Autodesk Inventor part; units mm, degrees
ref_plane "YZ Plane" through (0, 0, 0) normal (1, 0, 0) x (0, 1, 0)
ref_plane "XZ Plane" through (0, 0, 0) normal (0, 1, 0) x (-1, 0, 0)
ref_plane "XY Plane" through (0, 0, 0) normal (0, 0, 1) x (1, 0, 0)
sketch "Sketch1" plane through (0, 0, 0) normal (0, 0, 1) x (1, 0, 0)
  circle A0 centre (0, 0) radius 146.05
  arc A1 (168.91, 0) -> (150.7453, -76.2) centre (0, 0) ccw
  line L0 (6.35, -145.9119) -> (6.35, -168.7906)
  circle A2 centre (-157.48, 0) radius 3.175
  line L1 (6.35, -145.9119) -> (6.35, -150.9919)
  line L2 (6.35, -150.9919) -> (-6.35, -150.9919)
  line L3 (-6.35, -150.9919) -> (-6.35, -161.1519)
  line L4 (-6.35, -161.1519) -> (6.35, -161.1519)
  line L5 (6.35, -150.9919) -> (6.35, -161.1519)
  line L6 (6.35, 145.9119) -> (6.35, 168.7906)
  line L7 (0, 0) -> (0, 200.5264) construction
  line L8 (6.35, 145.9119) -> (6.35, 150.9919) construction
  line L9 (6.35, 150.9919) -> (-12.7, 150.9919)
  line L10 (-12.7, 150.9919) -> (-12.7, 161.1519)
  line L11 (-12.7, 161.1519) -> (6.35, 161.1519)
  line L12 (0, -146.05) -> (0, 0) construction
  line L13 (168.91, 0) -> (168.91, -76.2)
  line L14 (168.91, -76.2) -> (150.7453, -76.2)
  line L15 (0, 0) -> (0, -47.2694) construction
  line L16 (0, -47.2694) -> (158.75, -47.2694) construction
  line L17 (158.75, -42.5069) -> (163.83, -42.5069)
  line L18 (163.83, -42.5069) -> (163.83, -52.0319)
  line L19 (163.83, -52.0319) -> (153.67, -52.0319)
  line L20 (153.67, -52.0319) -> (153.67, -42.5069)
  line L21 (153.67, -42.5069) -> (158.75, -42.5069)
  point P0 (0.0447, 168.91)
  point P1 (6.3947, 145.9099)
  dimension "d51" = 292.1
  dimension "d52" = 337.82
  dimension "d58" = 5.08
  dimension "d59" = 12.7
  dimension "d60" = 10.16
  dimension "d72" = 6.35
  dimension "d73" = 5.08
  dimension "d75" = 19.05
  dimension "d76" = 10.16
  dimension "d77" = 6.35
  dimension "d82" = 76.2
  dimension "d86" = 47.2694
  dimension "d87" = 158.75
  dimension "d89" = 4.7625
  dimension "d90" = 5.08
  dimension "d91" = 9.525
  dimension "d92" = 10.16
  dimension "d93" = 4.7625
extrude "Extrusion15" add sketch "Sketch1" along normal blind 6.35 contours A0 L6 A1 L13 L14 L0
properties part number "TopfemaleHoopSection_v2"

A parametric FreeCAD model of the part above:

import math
import FreeCAD as App
import Part
import Sketcher
Q = App.Units.Quantity


def add_polygon(sketch, points):
    """Adds a closed chain of lines whose ends are joined by coincident constraints."""
    first, n = sketch.GeometryCount, len(points)
    for a, b in zip(points, points[1:] + points[:1]):
        sketch.addGeometry(Part.LineSegment(App.Vector(*a, 0), App.Vector(*b, 0)), False)
    for i in range(n):
        sketch.addConstraint(Sketcher.Constraint("Coincident", first + i, 2, first + (i + 1) % n, 1))

doc = App.newDocument("Part")
body = doc.addObject("PartDesign::Body", "Body")

# Sketch on XY plane
sketch1 = doc.addObject("Sketcher::SketchObject", "Sketch")
body.addObject(sketch1)
sketch1.AttachmentSupport = (doc.XY_Plane, [""])
sketch1.MapMode = "FlatFace"
sketch1.addGeometry(Part.ArcOfCircle(Part.Circle(App.Vector(0, 0, 0), App.Vector(0, 0, 1), 146), math.radians(-88), math.radians(88)), False)  # 0
sketch1.addGeometry(Part.LineSegment(App.Vector(6, -146, 0), App.Vector(6, -169, 0)), False)  # 1
sketch1.addGeometry(Part.ArcOfCircle(Part.Circle(App.Vector(0, 0, 0), App.Vector(0, 0, 1), 169), math.radians(-88), math.radians(-27)), False)  # 2
sketch1.addGeometry(Part.LineSegment(App.Vector(151, -76, 0), App.Vector(169, -76, 0)), False)  # 3
sketch1.addGeometry(Part.LineSegment(App.Vector(169, -76, 0), App.Vector(169, 0, 0)), False)  # 4
sketch1.addGeometry(Part.ArcOfCircle(Part.Circle(App.Vector(0, 0, 0), App.Vector(0, 0, 1), 169), math.radians(0), math.radians(88)), False)  # 5
sketch1.addGeometry(Part.LineSegment(App.Vector(6, 169, 0), App.Vector(6, 146, 0)), False)  # 6
add_polygon(sketch1, [(154, -43), (164, -43), (164, -52), (154, -52)])  # lines 7-10
sketch1.addConstraint(Sketcher.Constraint("Coincident", 0, 1, 1, 1))
sketch1.addConstraint(Sketcher.Constraint("Coincident", 1, 2, 2, 1))
sketch1.addConstraint(Sketcher.Constraint("Coincident", 2, 2, 3, 1))
sketch1.addConstraint(Sketcher.Constraint("Coincident", 3, 2, 4, 1))
sketch1.addConstraint(Sketcher.Constraint("Tangent", 4, 2, 5, 1))
sketch1.addConstraint(Sketcher.Constraint("Coincident", 5, 2, 6, 1))
sketch1.addConstraint(Sketcher.Constraint("Coincident", 6, 2, 0, 2))
sketch1.addConstraint(Sketcher.Constraint("Vertical", 1))
sketch1.addConstraint(Sketcher.Constraint("Horizontal", 3))
sketch1.addConstraint(Sketcher.Constraint("Vertical", 4))
sketch1.addConstraint(Sketcher.Constraint("Vertical", 6))
sketch1.addConstraint(Sketcher.Constraint("Horizontal", 7))
sketch1.addConstraint(Sketcher.Constraint("Vertical", 8))
sketch1.addConstraint(Sketcher.Constraint("Horizontal", 9))
sketch1.addConstraint(Sketcher.Constraint("Vertical", 10))
sketch1.addConstraint(Sketcher.Constraint("Coincident", 0, 3, -1, 1))
sketch1.addConstraint(Sketcher.Constraint("Coincident", 2, 3, -1, 1))
sketch1.addConstraint(Sketcher.Constraint("Coincident", 5, 3, -1, 1))
sketch1.addConstraint(Sketcher.Constraint("Equal", 2, 5))
sketch1.addConstraint(Sketcher.Constraint("Vertical", 1, 2, 5, 2))
sketch1.addConstraint(Sketcher.Constraint("DistanceY", 4, 1, 4, 2, Q("3 in")))
sketch1.addConstraint(Sketcher.Constraint("Radius", 0, Q("5.75 in")))
sketch1.addConstraint(Sketcher.Constraint("Radius", 2, Q("6.65 in")))
sketch1.addConstraint(Sketcher.Constraint("DistanceX", 7, 1, 7, 2, Q("0.4 in")))
sketch1.addConstraint(Sketcher.Constraint("DistanceX", 7, 2, 3, 2, Q("0.2 in")))
sketch1.addConstraint(Sketcher.Constraint("DistanceY", 8, 2, 8, 1, Q("0.375 in")))
sketch1.addConstraint(Sketcher.Constraint("DistanceX", -1, 1, 0, 1, Q("0.25 in")))
sketch1.addConstraint(Sketcher.Constraint("DistanceY", 7, 2, -1, 1, Q("1.6735 in")))
pad1 = doc.addObject("PartDesign::Pad", "Pad")
body.addObject(pad1)
pad1.Profile = sketch1
pad1.Length = Q("0.25 in")

doc.recompute()
